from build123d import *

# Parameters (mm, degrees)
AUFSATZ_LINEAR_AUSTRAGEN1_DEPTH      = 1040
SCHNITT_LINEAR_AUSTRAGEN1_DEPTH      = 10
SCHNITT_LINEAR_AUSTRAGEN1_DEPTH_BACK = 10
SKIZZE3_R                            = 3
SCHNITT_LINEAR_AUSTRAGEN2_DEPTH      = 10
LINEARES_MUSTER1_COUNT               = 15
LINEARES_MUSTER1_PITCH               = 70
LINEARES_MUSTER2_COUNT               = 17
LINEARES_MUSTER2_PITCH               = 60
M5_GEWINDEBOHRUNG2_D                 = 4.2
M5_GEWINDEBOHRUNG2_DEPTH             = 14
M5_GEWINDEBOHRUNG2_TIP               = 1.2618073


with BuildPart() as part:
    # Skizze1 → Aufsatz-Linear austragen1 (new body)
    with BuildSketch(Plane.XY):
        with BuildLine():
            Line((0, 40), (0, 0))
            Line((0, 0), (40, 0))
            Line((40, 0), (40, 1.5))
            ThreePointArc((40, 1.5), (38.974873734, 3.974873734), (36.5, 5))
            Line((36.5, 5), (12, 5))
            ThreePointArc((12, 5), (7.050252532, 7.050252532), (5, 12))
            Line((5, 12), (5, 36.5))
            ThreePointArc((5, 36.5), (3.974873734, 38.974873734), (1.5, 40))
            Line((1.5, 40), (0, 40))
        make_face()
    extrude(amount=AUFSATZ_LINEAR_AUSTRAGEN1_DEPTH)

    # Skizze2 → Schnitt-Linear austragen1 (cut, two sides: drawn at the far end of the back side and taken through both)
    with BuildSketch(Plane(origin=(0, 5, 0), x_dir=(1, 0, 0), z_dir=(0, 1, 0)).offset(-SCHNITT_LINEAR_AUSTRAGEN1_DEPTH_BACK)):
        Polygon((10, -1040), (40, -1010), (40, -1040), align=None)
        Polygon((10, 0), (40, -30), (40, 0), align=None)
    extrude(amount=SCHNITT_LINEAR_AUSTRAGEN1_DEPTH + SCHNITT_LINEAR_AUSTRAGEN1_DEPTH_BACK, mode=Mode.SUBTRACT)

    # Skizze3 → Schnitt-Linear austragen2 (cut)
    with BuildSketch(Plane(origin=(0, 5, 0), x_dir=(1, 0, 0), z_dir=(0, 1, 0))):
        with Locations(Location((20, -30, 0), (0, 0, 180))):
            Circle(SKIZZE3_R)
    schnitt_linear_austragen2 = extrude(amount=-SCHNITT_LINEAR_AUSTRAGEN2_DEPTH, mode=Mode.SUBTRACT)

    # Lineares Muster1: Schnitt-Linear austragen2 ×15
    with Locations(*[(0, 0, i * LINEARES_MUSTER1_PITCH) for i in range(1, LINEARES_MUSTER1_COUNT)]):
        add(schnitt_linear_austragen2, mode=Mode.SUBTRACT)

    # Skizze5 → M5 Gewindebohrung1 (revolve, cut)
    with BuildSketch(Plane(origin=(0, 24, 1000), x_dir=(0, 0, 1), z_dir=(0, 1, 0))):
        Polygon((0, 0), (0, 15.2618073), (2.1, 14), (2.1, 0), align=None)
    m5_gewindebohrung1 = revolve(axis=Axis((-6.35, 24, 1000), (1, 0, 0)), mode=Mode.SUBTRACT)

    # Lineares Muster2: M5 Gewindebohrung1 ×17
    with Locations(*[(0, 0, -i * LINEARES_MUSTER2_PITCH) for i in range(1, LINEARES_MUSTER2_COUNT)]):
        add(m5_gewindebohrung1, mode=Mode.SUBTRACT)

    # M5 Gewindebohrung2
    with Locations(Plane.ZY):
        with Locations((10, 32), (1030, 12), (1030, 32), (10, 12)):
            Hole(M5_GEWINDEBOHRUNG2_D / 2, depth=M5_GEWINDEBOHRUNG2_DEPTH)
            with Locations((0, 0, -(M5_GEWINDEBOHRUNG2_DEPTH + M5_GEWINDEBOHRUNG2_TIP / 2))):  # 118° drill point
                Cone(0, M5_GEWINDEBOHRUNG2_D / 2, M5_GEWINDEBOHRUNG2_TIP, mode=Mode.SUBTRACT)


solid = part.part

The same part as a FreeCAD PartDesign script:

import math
import FreeCAD as App
import Part
import Sketcher
from FreeCAD import Vector
Q = App.Units.Quantity


def add_polygon(sketch, points):
    """Adds a closed chain of lines whose ends are joined by coincident constraints."""
    first, n = sketch.GeometryCount, len(points)
    for a, b in zip(points, points[1:] + points[:1]):
        sketch.addGeometry(Part.LineSegment(App.Vector(*a, 0), App.Vector(*b, 0)), False)
    for i in range(n):
        sketch.addConstraint(Sketcher.Constraint("Coincident", first + i, 2, first + (i + 1) % n, 1))

doc = App.newDocument("Part")
body = doc.addObject("PartDesign::Body", "Body")

# Sketch on XY plane
sketch1 = doc.addObject("Sketcher::SketchObject", "Sketch")
body.addObject(sketch1)
sketch1.AttachmentSupport = (doc.XY_Plane, [""])
sketch1.MapMode = "FlatFace"
sketch1.addGeometry(Part.LineSegment(Vector(0, 40, 0), Vector(0, 0, 0)), False)
sketch1.addGeometry(Part.LineSegment(Vector(0, 0, 0), Vector(40, 0, 0)), False)
sketch1.addGeometry(Part.LineSegment(Vector(40, 0, 0), Vector(40, 1.5, 0)), False)
sketch1.addGeometry(Part.ArcOfCircle(Part.Circle(Vector(36.5, 1.5, 0), Vector(0, 0, 1), 3.5), math.radians(0), math.radians(90)), False)
sketch1.addGeometry(Part.LineSegment(Vector(36.5, 5, 0), Vector(12, 5, 0)), False)
sketch1.addGeometry(Part.ArcOfCircle(Part.Circle(Vector(12, 12, 0), Vector(0, 0, 1), 7), math.radians(-180), math.radians(-90)), False)
sketch1.addGeometry(Part.LineSegment(Vector(5, 12, 0), Vector(5, 36.5, 0)), False)
sketch1.addGeometry(Part.ArcOfCircle(Part.Circle(Vector(1.5, 36.5, 0), Vector(0, 0, 1), 3.5), math.radians(0), math.radians(90)), False)
sketch1.addGeometry(Part.LineSegment(Vector(1.5, 40, 0), Vector(0, 40, 0)), False)
sketch1.addConstraint(Sketcher.Constraint("Coincident", 0, 2, 1, 1))
sketch1.addConstraint(Sketcher.Constraint("Coincident", 1, 2, 2, 1))
sketch1.addConstraint(Sketcher.Constraint("Tangent", 2, 2, 3, 1))
sketch1.addConstraint(Sketcher.Constraint("Tangent", 3, 2, 4, 1))
sketch1.addConstraint(Sketcher.Constraint("Tangent", 4, 2, 5, 2))
sketch1.addConstraint(Sketcher.Constraint("Tangent", 5, 1, 6, 1))
sketch1.addConstraint(Sketcher.Constraint("Tangent", 6, 2, 7, 1))
sketch1.addConstraint(Sketcher.Constraint("Tangent", 7, 2, 8, 1))
sketch1.addConstraint(Sketcher.Constraint("Coincident", 8, 2, 0, 1))
sketch1.addConstraint(Sketcher.Constraint("Vertical", 0))
sketch1.addConstraint(Sketcher.Constraint("Horizontal", 1))
sketch1.addConstraint(Sketcher.Constraint("Vertical", 2))
sketch1.addConstraint(Sketcher.Constraint("Horizontal", 4))
sketch1.addConstraint(Sketcher.Constraint("Vertical", 6))
sketch1.addConstraint(Sketcher.Constraint("Horizontal", 8))
sketch1.addConstraint(Sketcher.Constraint("Coincident", 0, 2, -1, 1))
sketch1.addConstraint(Sketcher.Constraint("Equal", 3, 7))
sketch1.addConstraint(Sketcher.Constraint("Equal", 1, 0))
sketch1.addConstraint(Sketcher.Constraint("Equal", 8, 2))
sketch1.addConstraint(Sketcher.Constraint("Radius", 5, Q("7 mm")))
sketch1.addConstraint(Sketcher.Constraint("Radius", 3, Q("3.5 mm")))
sketch1.addConstraint(Sketcher.Constraint("DistanceX", 1, 1, 1, 2, Q("40 mm")))
sketch1.addConstraint(Sketcher.Constraint("DistanceX", 4, 2, 4, 1, Q("24.5 mm")))
pad1 = doc.addObject("PartDesign::Pad", "Pad")
body.addObject(pad1)
pad1.Profile = sketch1
pad1.Length = 1040

# Sketch on XZ plane
sketch2 = doc.addObject("Sketcher::SketchObject", "Sketch001")
body.addObject(sketch2)
sketch2.AttachmentSupport = (doc.XZ_Plane, [""])
sketch2.MapMode = "FlatFace"
sketch2.AttachmentOffset = App.Placement(Vector(0, 0, -5), App.Rotation())
add_polygon(sketch2, [(40, 1010), (10, 1040), (40, 1040)])  # lines 0-2
add_polygon(sketch2, [(10, 0), (40, 30), (40, 0)])  # lines 3-5
sketch2.addConstraint(Sketcher.Constraint("Horizontal", 1))
sketch2.addConstraint(Sketcher.Constraint("Vertical", 2))
sketch2.addConstraint(Sketcher.Constraint("Vertical", 4))
sketch2.addConstraint(Sketcher.Constraint("Horizontal", 5))
sketch2.addConstraint(Sketcher.Constraint("PointOnObject", 4, 2, -1))
sketch2.addConstraint(Sketcher.Constraint("Perpendicular", 0, 3))
sketch2.addConstraint(Sketcher.Constraint("Vertical", 2, 2, 3, 2))
sketch2.addConstraint(Sketcher.Constraint("Vertical", 0, 2, 5, 2))
sketch2.addConstraint(Sketcher.Constraint("Equal", 5, 2))
sketch2.addConstraint(Sketcher.Constraint("DistanceX", 1, 1, 1, 2, Q("30 mm")))
sketch2.addConstraint(Sketcher.Constraint("DistanceX", -1, 1, 0, 2, Q("10 mm")))
sketch2.addConstraint(Sketcher.Constraint("DistanceY", -1, 1, 0, 2, Q("1040 mm")))
pocket1 = doc.addObject("PartDesign::Pocket", "Pocket")
body.addObject(pocket1)
pocket1.Profile = sketch2
pocket1.Type = "ThroughAll"
pocket1.Midplane = True

# Sketch on XZ plane
sketch3 = doc.addObject("Sketcher::SketchObject", "Sketch002")
body.addObject(sketch3)
sketch3.AttachmentSupport = (doc.XZ_Plane, [""])
sketch3.MapMode = "FlatFace"
sketch3.AttachmentOffset = App.Placement(Vector(0, 0, -5), App.Rotation())
sketch3.addGeometry(Part.Circle(Vector(20, 30, 0), Vector(0, 0, 1), 3), False)
sketch3.addConstraint(Sketcher.Constraint("Diameter", 0, Q("6 mm")))
sketch3.addConstraint(Sketcher.Constraint("DistanceX", -1, 1, 0, 3, Q("20 mm")))
sketch3.addConstraint(Sketcher.Constraint("DistanceY", -1, 1, 0, 3, Q("30 mm")))
pocket2 = doc.addObject("PartDesign::Pocket", "Pocket001")
body.addObject(pocket2)
pocket2.Profile = sketch3
pocket2.Length = 10
pocket2.Reversed = True
doc.recompute()

linearpattern = doc.addObject("PartDesign::LinearPattern", "LinearPattern")
body.addObject(linearpattern)
linearpattern.Originals = [pocket2]
linearpattern.Direction = (doc.Z_Axis, [""])
linearpattern.Mode = "offset"
linearpattern.Offset = 70
linearpattern.Occurrences = 15
body.Tip = linearpattern

# Sketch on XZ plane
sketch4 = doc.addObject("Sketcher::SketchObject", "Sketch003")
body.addObject(sketch4)
sketch4.AttachmentSupport = (doc.XZ_Plane, [""])
sketch4.MapMode = "FlatFace"
sketch4.AttachmentOffset = App.Placement(Vector(0, 0, -24), App.Rotation())
add_polygon(sketch4, [(15.3, 1000), (0, 1000), (0, 1002.1), (14, 1002.1)])  # lines 0-3
sketch4.addGeometry(Part.LineSegment(Vector(0, 1000, 0), Vector(15.3, 1000, 0)), True)  # axis
sketch4.addConstraint(Sketcher.Constraint("Horizontal", 0))
sketch4.addConstraint(Sketcher.Constraint("Vertical", 1))
sketch4.addConstraint(Sketcher.Constraint("Horizontal", 2))
sketch4.addConstraint(Sketcher.Constraint("Horizontal", 4))
sketch4.addConstraint(Sketcher.Constraint("Coincident", 4, 1, 0, 2))
sketch4.addConstraint(Sketcher.Constraint("PointOnObject", 0, 2, -2))
sketch4.addConstraint(Sketcher.Constraint("Equal", 0, 4))
sketch4.addConstraint(Sketcher.Constraint("DistanceX", 2, 1, 2, 2, Q("14 mm")))
sketch4.addConstraint(Sketcher.Constraint("Angle", 3, Q("-59 deg")))
sketch4.addConstraint(Sketcher.Constraint("DistanceY", 1, 1, 1, 2, Q("2.1 mm")))
sketch4.addConstraint(Sketcher.Constraint("DistanceY", -1, 1, 0, 2, Q("1000 mm")))
groove = doc.addObject("PartDesign::Groove", "Groove")
body.addObject(groove)
groove.Profile = sketch4
groove.ReferenceAxis = (sketch4, ["Axis0"])
groove.Angle = 360
doc.recompute()

linearpattern2 = doc.addObject("PartDesign::LinearPattern", "LinearPattern001")
body.addObject(linearpattern2)
linearpattern2.Originals = [groove]
linearpattern2.Direction = (doc.Z_Axis, [""])
linearpattern2.Mode = "offset"
linearpattern2.Offset = 60
linearpattern2.Occurrences = 17
linearpattern2.Reversed = True
body.Tip = linearpattern2

# Sketch on YZ plane
sketch5 = doc.addObject("Sketcher::SketchObject", "Sketch004")
body.addObject(sketch5)
sketch5.AttachmentSupport = (doc.YZ_Plane, [""])
sketch5.MapMode = "FlatFace"
sketch5.addGeometry(Part.Circle(Vector(32, 10, 0), Vector(0, 0, 1), 2.1), False)
sketch5.addGeometry(Part.Circle(Vector(12, 1030, 0), Vector(0, 0, 1), 2.1), False)
sketch5.addGeometry(Part.Circle(Vector(32, 1030, 0), Vector(0, 0, 1), 2.1), False)
sketch5.addGeometry(Part.Circle(Vector(12, 10, 0), Vector(0, 0, 1), 2.1), False)
sketch5.addConstraint(Sketcher.Constraint("Equal", 0, 1))
sketch5.addConstraint(Sketcher.Constraint("Equal", 1, 2))
sketch5.addConstraint(Sketcher.Constraint("Equal", 2, 3))
sketch5.addConstraint(Sketcher.Constraint("Horizontal", 1, 3, 2, 3))
sketch5.addConstraint(Sketcher.Constraint("Horizontal", 0, 3, 3, 3))
sketch5.addConstraint(Sketcher.Constraint("Vertical", 0, 3, 2, 3))
sketch5.addConstraint(Sketcher.Constraint("Vertical", 1, 3, 3, 3))
sketch5.addConstraint(Sketcher.Constraint("Diameter", 0, Q("4.2 mm")))
sketch5.addConstraint(Sketcher.Constraint("DistanceX", -1, 1, 0, 3, Q("32 mm")))
sketch5.addConstraint(Sketcher.Constraint("DistanceY", -1, 1, 0, 3, Q("10 mm")))
sketch5.addConstraint(Sketcher.Constraint("DistanceX", -1, 1, 1, 3, Q("12 mm")))
sketch5.addConstraint(Sketcher.Constraint("DistanceY", -1, 1, 1, 3, Q("1030 mm")))
doc.recompute()
hole = doc.addObject("PartDesign::Hole", "Hole")
body.addObject(hole)
hole.Profile = sketch5
hole.ThreadType = "None"
hole.Diameter = 4.2
hole.DepthType = "Dimension"
hole.Depth = 14
hole.DrillPoint = "Angled"
hole.DrillPointAngle = 118
hole.Reversed = True

doc.recompute()
